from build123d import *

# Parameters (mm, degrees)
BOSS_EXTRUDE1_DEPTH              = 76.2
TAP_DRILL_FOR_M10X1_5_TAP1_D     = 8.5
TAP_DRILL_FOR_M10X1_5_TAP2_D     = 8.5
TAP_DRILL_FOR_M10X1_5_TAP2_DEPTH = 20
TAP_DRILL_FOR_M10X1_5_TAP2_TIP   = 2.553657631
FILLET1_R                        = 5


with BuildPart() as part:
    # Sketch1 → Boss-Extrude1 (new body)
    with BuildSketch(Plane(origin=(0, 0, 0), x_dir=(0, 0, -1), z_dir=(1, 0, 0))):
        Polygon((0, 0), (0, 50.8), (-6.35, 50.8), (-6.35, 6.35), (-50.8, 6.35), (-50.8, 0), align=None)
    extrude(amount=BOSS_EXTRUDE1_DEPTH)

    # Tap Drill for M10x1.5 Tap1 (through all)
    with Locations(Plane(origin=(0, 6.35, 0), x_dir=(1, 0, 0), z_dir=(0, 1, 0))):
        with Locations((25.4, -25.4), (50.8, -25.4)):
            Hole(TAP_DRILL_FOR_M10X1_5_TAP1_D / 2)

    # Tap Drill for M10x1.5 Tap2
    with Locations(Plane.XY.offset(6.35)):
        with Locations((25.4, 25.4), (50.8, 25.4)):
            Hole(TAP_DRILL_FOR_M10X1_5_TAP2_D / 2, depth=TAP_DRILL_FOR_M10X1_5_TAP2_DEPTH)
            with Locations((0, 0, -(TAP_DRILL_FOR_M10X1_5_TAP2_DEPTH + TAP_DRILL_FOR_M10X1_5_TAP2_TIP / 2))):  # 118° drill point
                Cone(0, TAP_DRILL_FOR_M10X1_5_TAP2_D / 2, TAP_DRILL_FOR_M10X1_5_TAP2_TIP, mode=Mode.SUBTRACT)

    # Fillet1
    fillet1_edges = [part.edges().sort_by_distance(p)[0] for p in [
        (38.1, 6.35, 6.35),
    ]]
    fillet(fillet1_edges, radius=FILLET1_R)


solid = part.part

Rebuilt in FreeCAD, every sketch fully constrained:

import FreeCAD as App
import Part
import Sketcher
Q = App.Units.Quantity


def edges_at(feature, points):
    """Names of the edges that pass closest to the given points."""
    edges = feature.Shape.Edges
    near = lambda p: min(range(len(edges)), key=lambda i: edges[i].distToShape(Part.Vertex(*p))[0])
    return sorted({f"Edge{near(p) + 1}" for p in points})

doc = App.newDocument("Part")
body = doc.addObject("PartDesign::Body", "Body")

# Sketch on YZ plane
sketch1 = body.newObject("Sketcher::SketchObject", "Sketch")
sketch1.AttachmentSupport = (doc.getObject("YZ_Plane"), [""])
sketch1.MapMode = "FlatFace"
sketch1.addGeometry(Part.LineSegment(App.Vector(0, 0, 0), App.Vector(51, 0, 0)), False)
sketch1.addGeometry(Part.LineSegment(App.Vector(51, 0, 0), App.Vector(51, 6, 0)), False)
sketch1.addGeometry(Part.LineSegment(App.Vector(51, 6, 0), App.Vector(6, 6, 0)), False)
sketch1.addGeometry(Part.LineSegment(App.Vector(6, 6, 0), App.Vector(6, 51, 0)), False)
sketch1.addGeometry(Part.LineSegment(App.Vector(6, 51, 0), App.Vector(0, 51, 0)), False)
sketch1.addGeometry(Part.LineSegment(App.Vector(0, 51, 0), App.Vector(0, 0, 0)), False)
sketch1.addConstraint(Sketcher.Constraint("Coincident", 0, 2, 1, 1))
sketch1.addConstraint(Sketcher.Constraint("Coincident", 1, 2, 2, 1))
sketch1.addConstraint(Sketcher.Constraint("Coincident", 2, 2, 3, 1))
sketch1.addConstraint(Sketcher.Constraint("Coincident", 3, 2, 4, 1))
sketch1.addConstraint(Sketcher.Constraint("Coincident", 4, 2, 5, 1))
sketch1.addConstraint(Sketcher.Constraint("Coincident", 5, 2, 0, 1))
sketch1.addConstraint(Sketcher.Constraint("Horizontal", 0))
sketch1.addConstraint(Sketcher.Constraint("Vertical", 1))
sketch1.addConstraint(Sketcher.Constraint("Horizontal", 2))
sketch1.addConstraint(Sketcher.Constraint("Vertical", 3))
sketch1.addConstraint(Sketcher.Constraint("Horizontal", 4))
sketch1.addConstraint(Sketcher.Constraint("Vertical", 5))
sketch1.addConstraint(Sketcher.Constraint("Coincident", 5, 2, -1, 1))
sketch1.addConstraint(Sketcher.Constraint("Equal", 4, 1))
sketch1.addConstraint(Sketcher.Constraint("Equal", 2, 3))
sketch1.addConstraint(Sketcher.Constraint("DistanceX", 0, 1, 0, 2, Q("2 in")))
sketch1.addConstraint(Sketcher.Constraint("DistanceX", 2, 2, 2, 1, Q("1.75 in")))
pad1 = body.newObject("PartDesign::Pad", "Pad")
pad1.Profile = sketch1
pad1.Length = Q("3 in")

# Sketch on XZ plane
sketch2 = body.newObject("Sketcher::SketchObject", "Sketch001")
sketch2.AttachmentSupport = (doc.getObject("XZ_Plane"), [""])
sketch2.MapMode = "FlatFace"
sketch2.AttachmentOffset = App.Placement(App.Vector(0, 0, -0.25 * 25.4), App.Rotation())
sketch2.addGeometry(Part.Circle(App.Vector(25.4, 25.4, 0), App.Vector(0, 0, 1), 4.2), False)
sketch2.addGeometry(Part.Circle(App.Vector(50.8, 25.4, 0), App.Vector(0, 0, 1), 4.2), False)
sketch2.addConstraint(Sketcher.Constraint("Equal", 0, 1))
sketch2.addConstraint(Sketcher.Constraint("Horizontal", 0, 3, 1, 3))
sketch2.addConstraint(Sketcher.Constraint("DistanceX", -1, 1, 0, 3, Q("1 in")))
sketch2.addConstraint(Sketcher.Constraint("DistanceY", -1, 1, 0, 3, Q("1 in")))
sketch2.addConstraint(Sketcher.Constraint("DistanceX", -1, 1, 1, 3, Q("2 in")))
sketch2.addConstraint(Sketcher.Constraint("Diameter", 0, Q("8.5 mm")))
doc.recompute()
hole = body.newObject("PartDesign::Hole", "Hole")
hole.Profile = sketch2
hole.ThreadType = "None"
hole.Diameter = 8.5
hole.DepthType = "ThroughAll"
hole.Reversed = True

# Sketch on XY plane
sketch3 = body.newObject("Sketcher::SketchObject", "Sketch002")
sketch3.AttachmentSupport = (doc.getObject("XY_Plane"), [""])
sketch3.MapMode = "FlatFace"
sketch3.AttachmentOffset = App.Placement(App.Vector(0, 0, 0.25 * 25.4), App.Rotation())
sketch3.addGeometry(Part.Circle(App.Vector(25.4, 25.4, 0), App.Vector(0, 0, 1), 4.2), False)
sketch3.addGeometry(Part.Circle(App.Vector(50.8, 25.4, 0), App.Vector(0, 0, 1), 4.2), False)
sketch3.addConstraint(Sketcher.Constraint("Equal", 0, 1))
sketch3.addConstraint(Sketcher.Constraint("Horizontal", 0, 3, 1, 3))
sketch3.addConstraint(Sketcher.Constraint("DistanceX", -1, 1, 0, 3, Q("1 in")))
sketch3.addConstraint(Sketcher.Constraint("DistanceY", -1, 1, 0, 3, Q("1 in")))
sketch3.addConstraint(Sketcher.Constraint("DistanceX", -1, 1, 1, 3, Q("2 in")))
sketch3.addConstraint(Sketcher.Constraint("Diameter", 0, Q("8.5 mm")))
doc.recompute()
hole2 = body.newObject("PartDesign::Hole", "Hole001")
hole2.Profile = sketch3
hole2.ThreadType = "None"
hole2.Diameter = 8.5
hole2.DepthType = "Dimension"
hole2.Depth = 20
hole2.DrillPoint = "Angled"
hole2.DrillPointAngle = 118
doc.recompute()

fillet = body.newObject("PartDesign::Fillet", "Fillet")
fillet.Base = (hole2, edges_at(hole2, [(38.1, 6.35, 6.35)]))
fillet.Radius = 5

doc.recompute()
